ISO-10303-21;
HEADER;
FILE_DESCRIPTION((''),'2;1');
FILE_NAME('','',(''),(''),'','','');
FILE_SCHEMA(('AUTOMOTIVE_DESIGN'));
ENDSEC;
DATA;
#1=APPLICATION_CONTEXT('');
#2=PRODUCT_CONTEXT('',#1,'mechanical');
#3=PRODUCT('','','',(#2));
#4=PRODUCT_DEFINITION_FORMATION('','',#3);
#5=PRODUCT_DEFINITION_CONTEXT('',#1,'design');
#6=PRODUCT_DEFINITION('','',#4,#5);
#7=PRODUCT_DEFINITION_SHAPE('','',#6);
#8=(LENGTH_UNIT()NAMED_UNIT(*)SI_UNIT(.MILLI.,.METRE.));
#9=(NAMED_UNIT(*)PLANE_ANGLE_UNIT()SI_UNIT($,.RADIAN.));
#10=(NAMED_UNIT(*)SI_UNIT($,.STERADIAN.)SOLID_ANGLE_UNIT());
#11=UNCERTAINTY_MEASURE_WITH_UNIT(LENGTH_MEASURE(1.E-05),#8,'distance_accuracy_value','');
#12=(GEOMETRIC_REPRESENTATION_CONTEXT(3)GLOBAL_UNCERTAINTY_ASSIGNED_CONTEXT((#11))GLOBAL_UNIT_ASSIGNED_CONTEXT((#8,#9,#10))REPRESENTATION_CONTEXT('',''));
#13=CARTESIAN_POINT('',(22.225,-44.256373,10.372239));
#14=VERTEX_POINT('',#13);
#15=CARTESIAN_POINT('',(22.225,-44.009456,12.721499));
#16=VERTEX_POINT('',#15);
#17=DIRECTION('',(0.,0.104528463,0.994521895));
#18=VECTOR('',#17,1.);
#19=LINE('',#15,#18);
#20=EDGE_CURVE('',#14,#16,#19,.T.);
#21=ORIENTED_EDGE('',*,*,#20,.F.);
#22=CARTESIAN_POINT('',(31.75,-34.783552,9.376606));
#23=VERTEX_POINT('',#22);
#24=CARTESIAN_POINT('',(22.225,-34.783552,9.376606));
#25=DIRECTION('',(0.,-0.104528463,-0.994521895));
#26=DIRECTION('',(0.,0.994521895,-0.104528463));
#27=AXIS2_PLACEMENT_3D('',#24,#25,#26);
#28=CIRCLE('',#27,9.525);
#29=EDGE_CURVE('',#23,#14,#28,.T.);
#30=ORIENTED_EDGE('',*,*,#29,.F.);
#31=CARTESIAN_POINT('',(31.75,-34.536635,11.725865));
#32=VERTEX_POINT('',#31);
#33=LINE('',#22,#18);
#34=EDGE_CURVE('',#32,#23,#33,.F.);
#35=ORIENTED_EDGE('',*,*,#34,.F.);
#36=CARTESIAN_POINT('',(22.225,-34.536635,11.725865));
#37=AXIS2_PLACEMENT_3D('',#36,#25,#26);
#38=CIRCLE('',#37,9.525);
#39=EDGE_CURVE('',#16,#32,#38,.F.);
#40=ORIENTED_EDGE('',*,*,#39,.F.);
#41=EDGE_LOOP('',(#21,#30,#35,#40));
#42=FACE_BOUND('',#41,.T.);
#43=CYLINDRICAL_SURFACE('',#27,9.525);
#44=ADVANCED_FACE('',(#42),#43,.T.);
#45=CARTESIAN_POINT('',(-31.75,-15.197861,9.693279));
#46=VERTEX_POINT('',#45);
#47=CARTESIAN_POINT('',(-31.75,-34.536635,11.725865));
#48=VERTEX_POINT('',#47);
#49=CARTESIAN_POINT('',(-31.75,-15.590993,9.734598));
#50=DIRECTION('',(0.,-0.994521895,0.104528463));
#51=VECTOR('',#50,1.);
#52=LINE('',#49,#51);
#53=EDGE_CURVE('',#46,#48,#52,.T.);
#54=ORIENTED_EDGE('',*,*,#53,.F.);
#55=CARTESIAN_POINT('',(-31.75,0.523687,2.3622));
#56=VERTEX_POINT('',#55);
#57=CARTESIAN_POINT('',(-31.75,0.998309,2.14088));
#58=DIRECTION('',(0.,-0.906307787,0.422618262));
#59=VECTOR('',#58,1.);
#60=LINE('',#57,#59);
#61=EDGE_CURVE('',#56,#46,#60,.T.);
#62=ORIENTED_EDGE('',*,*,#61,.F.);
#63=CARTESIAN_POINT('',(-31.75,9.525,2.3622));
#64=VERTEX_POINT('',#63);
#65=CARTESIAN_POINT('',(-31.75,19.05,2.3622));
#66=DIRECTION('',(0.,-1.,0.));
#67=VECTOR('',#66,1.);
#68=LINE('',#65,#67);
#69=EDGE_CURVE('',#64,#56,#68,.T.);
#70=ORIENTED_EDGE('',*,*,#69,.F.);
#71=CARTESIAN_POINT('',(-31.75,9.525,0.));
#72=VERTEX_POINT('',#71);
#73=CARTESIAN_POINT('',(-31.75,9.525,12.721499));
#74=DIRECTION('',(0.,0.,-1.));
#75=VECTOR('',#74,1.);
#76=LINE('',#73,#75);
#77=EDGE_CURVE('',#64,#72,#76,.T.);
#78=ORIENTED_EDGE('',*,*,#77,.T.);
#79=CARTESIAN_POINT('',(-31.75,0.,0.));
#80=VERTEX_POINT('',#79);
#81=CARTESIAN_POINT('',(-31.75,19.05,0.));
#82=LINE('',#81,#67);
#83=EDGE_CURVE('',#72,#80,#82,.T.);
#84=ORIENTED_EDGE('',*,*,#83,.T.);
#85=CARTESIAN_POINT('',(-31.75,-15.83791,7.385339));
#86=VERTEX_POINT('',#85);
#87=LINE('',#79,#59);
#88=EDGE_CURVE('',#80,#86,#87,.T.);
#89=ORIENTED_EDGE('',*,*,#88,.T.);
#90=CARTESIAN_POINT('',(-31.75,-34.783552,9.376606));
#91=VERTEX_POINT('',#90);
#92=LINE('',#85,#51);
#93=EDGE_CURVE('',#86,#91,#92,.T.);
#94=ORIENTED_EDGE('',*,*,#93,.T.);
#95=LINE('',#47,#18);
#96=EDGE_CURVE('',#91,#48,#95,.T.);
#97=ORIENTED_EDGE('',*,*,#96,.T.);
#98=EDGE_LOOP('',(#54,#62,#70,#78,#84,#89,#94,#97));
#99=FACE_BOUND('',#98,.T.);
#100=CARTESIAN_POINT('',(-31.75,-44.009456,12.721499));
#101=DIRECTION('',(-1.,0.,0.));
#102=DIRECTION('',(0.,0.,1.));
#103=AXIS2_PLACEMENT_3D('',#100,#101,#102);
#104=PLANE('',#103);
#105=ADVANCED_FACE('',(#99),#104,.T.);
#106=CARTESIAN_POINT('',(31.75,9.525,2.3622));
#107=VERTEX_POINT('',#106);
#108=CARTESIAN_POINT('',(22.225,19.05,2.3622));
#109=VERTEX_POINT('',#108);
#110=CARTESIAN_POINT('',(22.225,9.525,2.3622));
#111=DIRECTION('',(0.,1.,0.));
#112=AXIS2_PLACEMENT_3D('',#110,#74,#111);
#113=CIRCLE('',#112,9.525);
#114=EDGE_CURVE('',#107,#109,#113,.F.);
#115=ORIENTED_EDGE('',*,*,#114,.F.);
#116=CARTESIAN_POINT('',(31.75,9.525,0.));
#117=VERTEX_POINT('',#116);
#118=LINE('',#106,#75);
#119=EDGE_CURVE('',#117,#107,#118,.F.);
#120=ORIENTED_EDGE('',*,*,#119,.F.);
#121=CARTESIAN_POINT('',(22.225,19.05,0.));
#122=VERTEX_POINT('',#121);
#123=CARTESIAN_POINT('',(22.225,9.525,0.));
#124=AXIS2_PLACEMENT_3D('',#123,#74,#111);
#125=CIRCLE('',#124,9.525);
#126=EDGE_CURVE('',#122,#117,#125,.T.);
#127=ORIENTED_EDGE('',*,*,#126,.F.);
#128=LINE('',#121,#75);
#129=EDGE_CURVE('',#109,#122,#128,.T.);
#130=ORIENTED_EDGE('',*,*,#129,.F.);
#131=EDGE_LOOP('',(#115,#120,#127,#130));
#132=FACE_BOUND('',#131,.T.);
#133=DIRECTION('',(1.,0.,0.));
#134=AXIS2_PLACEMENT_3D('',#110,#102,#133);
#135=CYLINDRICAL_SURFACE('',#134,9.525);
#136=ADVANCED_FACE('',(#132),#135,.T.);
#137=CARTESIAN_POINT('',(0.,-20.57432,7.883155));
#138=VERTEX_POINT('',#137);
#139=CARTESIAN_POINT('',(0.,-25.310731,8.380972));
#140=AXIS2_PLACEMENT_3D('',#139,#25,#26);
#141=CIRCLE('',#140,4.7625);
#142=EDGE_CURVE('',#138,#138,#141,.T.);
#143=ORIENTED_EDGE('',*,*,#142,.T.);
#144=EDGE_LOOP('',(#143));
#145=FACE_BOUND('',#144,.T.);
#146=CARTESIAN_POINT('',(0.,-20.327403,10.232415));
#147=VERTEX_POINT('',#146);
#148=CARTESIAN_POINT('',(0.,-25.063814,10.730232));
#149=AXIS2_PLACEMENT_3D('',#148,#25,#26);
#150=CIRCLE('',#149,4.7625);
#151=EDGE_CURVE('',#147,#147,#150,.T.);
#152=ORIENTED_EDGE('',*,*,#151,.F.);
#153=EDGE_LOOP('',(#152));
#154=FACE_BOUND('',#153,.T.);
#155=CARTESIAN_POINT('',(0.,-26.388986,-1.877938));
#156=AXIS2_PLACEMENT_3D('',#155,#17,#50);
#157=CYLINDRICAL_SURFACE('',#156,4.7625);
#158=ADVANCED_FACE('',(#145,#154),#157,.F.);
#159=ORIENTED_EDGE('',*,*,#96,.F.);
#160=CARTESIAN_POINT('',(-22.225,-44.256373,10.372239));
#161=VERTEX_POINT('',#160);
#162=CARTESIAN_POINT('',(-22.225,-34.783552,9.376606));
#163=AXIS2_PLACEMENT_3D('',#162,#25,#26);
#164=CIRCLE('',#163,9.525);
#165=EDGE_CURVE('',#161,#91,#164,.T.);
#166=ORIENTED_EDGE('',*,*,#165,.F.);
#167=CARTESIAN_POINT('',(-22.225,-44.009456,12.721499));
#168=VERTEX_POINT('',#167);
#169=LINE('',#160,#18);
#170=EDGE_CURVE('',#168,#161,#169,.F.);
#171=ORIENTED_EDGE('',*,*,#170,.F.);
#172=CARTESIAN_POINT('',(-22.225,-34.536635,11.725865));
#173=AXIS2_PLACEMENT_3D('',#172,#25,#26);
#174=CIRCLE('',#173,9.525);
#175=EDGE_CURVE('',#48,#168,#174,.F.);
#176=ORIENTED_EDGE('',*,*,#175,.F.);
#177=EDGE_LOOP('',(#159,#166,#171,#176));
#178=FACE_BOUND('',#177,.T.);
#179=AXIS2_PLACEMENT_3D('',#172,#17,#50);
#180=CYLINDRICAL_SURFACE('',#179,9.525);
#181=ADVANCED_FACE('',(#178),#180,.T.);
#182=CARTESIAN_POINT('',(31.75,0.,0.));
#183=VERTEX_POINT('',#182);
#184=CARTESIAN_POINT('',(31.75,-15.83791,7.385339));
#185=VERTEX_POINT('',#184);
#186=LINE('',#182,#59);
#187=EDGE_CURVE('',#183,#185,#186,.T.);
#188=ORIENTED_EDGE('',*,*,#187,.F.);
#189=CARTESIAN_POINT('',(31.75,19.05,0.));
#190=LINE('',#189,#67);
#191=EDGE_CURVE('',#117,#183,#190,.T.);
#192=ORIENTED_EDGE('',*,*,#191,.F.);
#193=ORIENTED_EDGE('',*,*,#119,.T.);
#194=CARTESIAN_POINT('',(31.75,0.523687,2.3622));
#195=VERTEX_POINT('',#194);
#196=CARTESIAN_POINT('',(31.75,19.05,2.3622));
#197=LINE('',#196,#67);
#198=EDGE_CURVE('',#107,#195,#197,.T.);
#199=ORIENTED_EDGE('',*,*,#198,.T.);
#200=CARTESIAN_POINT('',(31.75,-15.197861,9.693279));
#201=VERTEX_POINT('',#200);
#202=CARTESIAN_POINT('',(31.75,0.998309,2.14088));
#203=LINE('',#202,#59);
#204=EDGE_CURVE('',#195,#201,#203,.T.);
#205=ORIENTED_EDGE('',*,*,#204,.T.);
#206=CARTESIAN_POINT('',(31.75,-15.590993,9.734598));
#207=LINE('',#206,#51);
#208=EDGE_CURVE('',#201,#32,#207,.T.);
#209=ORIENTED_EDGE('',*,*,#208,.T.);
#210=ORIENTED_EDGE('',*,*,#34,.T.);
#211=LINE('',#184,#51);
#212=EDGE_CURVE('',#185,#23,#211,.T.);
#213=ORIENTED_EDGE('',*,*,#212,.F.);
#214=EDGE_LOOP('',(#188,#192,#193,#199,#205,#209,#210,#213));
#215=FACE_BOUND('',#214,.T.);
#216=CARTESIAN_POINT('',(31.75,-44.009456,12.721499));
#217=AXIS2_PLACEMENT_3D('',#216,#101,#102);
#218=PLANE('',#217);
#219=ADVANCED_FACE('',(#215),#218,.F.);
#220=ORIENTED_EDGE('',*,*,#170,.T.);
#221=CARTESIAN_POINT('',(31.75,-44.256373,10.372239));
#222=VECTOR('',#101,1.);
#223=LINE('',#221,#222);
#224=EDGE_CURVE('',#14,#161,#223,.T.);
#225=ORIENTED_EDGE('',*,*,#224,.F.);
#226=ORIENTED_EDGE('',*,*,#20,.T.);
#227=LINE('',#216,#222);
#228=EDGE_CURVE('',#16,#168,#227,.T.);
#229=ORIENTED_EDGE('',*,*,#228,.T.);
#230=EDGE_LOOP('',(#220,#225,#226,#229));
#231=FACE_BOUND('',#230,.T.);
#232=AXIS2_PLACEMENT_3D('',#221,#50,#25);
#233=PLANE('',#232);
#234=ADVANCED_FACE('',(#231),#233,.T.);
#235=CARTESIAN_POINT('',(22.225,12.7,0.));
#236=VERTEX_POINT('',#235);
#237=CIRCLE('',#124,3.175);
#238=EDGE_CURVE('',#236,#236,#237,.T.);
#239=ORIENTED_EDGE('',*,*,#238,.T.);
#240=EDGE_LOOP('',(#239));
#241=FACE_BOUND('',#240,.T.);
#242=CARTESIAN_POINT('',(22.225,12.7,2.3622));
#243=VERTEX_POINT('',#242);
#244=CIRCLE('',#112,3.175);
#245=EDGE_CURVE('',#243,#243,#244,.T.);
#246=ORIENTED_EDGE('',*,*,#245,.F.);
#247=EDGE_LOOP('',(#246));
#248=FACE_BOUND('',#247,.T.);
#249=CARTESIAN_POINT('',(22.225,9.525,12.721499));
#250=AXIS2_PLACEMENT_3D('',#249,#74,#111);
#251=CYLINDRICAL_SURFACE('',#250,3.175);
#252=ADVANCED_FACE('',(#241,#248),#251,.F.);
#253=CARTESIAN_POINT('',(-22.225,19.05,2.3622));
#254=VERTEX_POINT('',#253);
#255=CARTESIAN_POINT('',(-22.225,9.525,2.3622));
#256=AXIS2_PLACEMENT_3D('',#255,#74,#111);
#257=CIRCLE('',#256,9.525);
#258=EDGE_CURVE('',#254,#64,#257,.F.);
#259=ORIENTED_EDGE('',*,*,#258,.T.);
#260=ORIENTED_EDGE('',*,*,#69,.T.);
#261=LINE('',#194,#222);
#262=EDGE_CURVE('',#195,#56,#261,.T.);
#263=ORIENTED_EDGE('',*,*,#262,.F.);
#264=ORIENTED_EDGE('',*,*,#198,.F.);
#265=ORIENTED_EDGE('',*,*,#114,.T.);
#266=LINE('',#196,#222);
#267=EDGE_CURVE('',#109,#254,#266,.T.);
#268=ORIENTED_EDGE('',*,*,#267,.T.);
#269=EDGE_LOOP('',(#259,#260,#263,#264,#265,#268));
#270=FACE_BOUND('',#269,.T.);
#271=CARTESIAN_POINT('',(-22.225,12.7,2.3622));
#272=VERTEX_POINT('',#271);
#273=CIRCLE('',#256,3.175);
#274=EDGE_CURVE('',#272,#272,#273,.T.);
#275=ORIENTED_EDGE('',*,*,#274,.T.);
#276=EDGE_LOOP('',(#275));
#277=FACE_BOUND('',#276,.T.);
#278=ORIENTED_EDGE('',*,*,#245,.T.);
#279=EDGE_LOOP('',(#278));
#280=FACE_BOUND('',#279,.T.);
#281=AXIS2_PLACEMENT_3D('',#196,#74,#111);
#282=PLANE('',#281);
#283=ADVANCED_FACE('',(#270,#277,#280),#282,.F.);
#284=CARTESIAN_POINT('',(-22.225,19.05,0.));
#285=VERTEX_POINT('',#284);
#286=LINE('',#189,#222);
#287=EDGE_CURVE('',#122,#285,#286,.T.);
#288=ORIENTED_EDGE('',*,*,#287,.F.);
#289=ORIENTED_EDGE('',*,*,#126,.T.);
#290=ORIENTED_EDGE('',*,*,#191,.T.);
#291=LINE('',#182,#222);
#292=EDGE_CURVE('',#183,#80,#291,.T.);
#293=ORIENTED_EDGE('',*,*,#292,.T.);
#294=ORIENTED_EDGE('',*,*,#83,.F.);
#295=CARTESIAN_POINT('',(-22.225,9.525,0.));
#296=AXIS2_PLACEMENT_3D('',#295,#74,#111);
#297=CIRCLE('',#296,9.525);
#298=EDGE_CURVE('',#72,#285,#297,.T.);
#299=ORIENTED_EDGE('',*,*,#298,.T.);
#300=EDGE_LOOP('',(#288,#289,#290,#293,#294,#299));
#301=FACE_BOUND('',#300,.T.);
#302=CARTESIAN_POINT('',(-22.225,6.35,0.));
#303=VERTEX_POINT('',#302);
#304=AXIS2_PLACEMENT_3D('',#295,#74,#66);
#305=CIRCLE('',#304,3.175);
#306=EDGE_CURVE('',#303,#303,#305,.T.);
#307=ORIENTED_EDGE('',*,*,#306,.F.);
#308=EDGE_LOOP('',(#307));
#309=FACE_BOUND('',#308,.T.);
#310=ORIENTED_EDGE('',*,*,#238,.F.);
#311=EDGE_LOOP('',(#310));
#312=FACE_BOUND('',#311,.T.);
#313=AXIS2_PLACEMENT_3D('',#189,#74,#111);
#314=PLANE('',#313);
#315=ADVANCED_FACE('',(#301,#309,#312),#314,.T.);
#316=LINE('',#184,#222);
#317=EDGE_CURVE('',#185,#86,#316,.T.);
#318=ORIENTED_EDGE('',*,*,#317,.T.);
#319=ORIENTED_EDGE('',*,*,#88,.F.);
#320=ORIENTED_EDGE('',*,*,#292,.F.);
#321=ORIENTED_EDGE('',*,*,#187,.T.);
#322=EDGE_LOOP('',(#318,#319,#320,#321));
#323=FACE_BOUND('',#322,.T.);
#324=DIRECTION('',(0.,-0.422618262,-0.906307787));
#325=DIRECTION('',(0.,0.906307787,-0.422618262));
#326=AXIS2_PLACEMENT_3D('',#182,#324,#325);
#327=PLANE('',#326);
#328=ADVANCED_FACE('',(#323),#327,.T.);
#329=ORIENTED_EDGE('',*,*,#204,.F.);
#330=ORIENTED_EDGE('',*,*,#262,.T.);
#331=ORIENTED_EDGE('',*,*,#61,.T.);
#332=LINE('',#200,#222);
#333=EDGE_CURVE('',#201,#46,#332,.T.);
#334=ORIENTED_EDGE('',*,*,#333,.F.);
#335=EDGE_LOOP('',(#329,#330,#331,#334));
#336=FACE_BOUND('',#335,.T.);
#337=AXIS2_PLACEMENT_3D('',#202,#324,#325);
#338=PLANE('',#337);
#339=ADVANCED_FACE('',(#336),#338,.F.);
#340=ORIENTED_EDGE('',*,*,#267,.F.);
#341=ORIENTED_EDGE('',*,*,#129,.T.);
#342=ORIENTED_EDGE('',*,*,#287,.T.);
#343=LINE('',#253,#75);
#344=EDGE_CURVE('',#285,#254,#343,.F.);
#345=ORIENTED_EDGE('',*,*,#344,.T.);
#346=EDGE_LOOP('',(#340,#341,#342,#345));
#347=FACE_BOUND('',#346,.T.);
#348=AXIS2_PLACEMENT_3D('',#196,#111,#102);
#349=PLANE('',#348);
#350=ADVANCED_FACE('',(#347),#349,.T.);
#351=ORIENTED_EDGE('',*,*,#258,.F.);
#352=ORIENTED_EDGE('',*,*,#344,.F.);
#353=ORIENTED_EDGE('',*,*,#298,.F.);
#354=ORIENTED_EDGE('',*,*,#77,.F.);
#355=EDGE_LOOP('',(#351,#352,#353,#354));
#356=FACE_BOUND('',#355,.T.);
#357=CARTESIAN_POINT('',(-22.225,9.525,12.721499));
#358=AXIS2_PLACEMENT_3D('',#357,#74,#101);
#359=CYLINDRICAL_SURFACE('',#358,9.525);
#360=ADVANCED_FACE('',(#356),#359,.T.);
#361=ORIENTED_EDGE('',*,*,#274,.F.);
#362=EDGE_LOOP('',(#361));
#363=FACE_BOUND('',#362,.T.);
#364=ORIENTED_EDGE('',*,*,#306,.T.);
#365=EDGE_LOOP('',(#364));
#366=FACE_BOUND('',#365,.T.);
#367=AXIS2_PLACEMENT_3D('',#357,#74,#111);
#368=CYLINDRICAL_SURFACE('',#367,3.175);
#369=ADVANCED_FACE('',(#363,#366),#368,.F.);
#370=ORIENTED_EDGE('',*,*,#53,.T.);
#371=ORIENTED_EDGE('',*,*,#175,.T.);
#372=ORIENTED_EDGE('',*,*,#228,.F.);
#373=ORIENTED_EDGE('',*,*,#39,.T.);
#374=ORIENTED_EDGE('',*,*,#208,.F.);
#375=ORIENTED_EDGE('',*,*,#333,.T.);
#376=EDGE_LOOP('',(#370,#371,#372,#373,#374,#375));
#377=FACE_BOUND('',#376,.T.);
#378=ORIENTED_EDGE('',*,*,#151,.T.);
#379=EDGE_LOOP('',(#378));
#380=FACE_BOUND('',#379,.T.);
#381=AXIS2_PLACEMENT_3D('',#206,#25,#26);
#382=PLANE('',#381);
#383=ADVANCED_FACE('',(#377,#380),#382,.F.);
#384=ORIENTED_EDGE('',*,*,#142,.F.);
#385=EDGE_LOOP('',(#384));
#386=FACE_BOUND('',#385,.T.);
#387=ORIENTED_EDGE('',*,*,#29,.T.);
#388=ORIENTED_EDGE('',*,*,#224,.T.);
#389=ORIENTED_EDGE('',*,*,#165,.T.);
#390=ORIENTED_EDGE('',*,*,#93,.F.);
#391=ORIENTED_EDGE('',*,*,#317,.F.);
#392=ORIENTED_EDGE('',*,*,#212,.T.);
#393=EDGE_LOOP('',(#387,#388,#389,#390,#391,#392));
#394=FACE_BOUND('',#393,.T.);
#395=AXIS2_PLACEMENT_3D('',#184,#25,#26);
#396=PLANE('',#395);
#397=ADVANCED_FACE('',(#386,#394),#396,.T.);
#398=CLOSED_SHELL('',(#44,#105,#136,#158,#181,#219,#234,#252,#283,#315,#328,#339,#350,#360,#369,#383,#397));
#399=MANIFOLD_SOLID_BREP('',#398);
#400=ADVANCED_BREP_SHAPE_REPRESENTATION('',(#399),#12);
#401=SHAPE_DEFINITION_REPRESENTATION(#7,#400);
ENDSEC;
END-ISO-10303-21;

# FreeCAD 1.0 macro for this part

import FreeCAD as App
import Part
import Sketcher
from FreeCAD import Vector
Q = App.Units.Quantity


def edges_at(feature, points):
    """Names of the edges that pass closest to the given points."""
    edges = feature.Shape.Edges
    near = lambda p: min(range(len(edges)), key=lambda i: edges[i].distToShape(Part.Vertex(*p))[0])
    return sorted({f"Edge{near(p) + 1}" for p in points})


def add_polygon(sketch, points):
    """Adds a closed chain of lines whose ends are joined by coincident constraints."""
    first, n = sketch.GeometryCount, len(points)
    for a, b in zip(points, points[1:] + points[:1]):
        sketch.addGeometry(Part.LineSegment(App.Vector(*a, 0), App.Vector(*b, 0)), False)
    for i in range(n):
        sketch.addConstraint(Sketcher.Constraint("Coincident", first + i, 2, first + (i + 1) % n, 1))

doc = App.newDocument("Part")
body = doc.addObject("PartDesign::Body", "Body")

# Sketch on YZ plane
sketch1 = doc.addObject("Sketcher::SketchObject", "Sketch")
body.addObject(sketch1)
sketch1.AttachmentSupport = (doc.YZ_Plane, [""])
sketch1.MapMode = "FlatFace"
add_polygon(sketch1, [(0, 0), (19.1, 0), (19.1, 2.4), (0.5, 2.4), (-15.2, 9.7), (-44, 12.7), (-44.3, 10.4), (-15.8, 7.4)])  # lines 0-7
sketch1.addConstraint(Sketcher.Constraint("Horizontal", 0))
sketch1.addConstraint(Sketcher.Constraint("Vertical", 1))
sketch1.addConstraint(Sketcher.Constraint("Horizontal", 2))
sketch1.addConstraint(Sketcher.Constraint("Coincident", 7, 2, -1, 1))
sketch1.addConstraint(Sketcher.Constraint("Perpendicular", 4, 5))
sketch1.addConstraint(Sketcher.Constraint("Perpendicular", 5, 6))
sketch1.addConstraint(Sketcher.Constraint("Parallel", 3, 7))
sketch1.addConstraint(Sketcher.Constraint("Angle", 3, Q("155 deg")))
sketch1.addConstraint(Sketcher.Constraint("Angle", 4, Q("174 deg")))
sketch1.addConstraint(Sketcher.Constraint("DistanceX", 0, 1, 0, 2, Q("0.75 in")))
sketch1.addConstraint(Sketcher.Constraint("DistanceY", 1, 1, 1, 2, Q("0.093 in")))
sketch1.addConstraint(Sketcher.Constraint("Distance", 5, Q("0.093 in")))
sketch1.addConstraint(Sketcher.Constraint("Distance", 6, Q("1.125 in")))
sketch1.addConstraint(Sketcher.Constraint("Distance", 7, Q("0.688 in")))
sketch1.addConstraint(Sketcher.Constraint("Distance", 3, 17.34681))
pad1 = doc.addObject("PartDesign::Pad", "Pad")
body.addObject(pad1)
pad1.Profile = sketch1
pad1.Length = Q("2.5 in")
pad1.Midplane = True

# Sketch on an angled plane
sketch2 = doc.addObject("Sketcher::SketchObject", "Sketch001")
body.addObject(sketch2)
sketch2.Placement = App.Placement(Vector(0, -51.169527, 13.474053), App.Rotation(Vector(-1, 0, 0), Vector(0, -0.994521895, 0.104528463), Vector(0, 0.104528463, 0.994521895), "ZXY"))
sketch2.addGeometry(Part.Circle(Vector(0, -26.2, 0), Vector(0, 0, 1), 4.8), False)
sketch2.addConstraint(Sketcher.Constraint("PointOnObject", 0, 3, -2))
sketch2.addConstraint(Sketcher.Constraint("Diameter", 0, Q("0.375 in")))
sketch2.addConstraint(Sketcher.Constraint("DistanceY", 0, 3, -1, 1, 26.249511))
pocket1 = doc.addObject("PartDesign::Pocket", "Pocket")
body.addObject(pocket1)
pocket1.Profile = sketch2
pocket1.Type = "ThroughAll"
pocket1.Midplane = True

# Sketch on XY plane
sketch3 = doc.addObject("Sketcher::SketchObject", "Sketch002")
body.addObject(sketch3)
sketch3.AttachmentSupport = (doc.XY_Plane, [""])
sketch3.MapMode = "FlatFace"
sketch3.addGeometry(Part.Circle(Vector(22.2, 9.5, 0), Vector(0, 0, 1), 3.2), False)
sketch3.addGeometry(Part.Circle(Vector(-22.2, 9.5, 0), Vector(0, 0, 1), 3.2), False)
sketch3.addConstraint(Sketcher.Constraint("Equal", 0, 1))
sketch3.addConstraint(Sketcher.Constraint("Symmetric", 0, 3, 1, 3, -2))
sketch3.addConstraint(Sketcher.Constraint("Diameter", 0, Q("0.25 in")))
sketch3.addConstraint(Sketcher.Constraint("DistanceX", 1, 3, 0, 3, Q("1.75 in")))
sketch3.addConstraint(Sketcher.Constraint("DistanceY", -1, 1, 0, 3, Q("0.375 in")))
pocket2 = doc.addObject("PartDesign::Pocket", "Pocket001")
body.addObject(pocket2)
pocket2.Profile = sketch3
pocket2.Type = "ThroughAll"
pocket2.Reversed = True
doc.recompute()

fillet = doc.addObject("PartDesign::Fillet", "Fillet")
body.addObject(fillet)
fillet.Base = (pocket2, edges_at(pocket2, [
    (31.75, 19.05, 1.181),
    (-31.75, 19.05, 1.181),
    (31.75, -44.133, 11.547),
    (-31.75, -44.133, 11.547),
]))
fillet.Radius = Q("0.375 in")

doc.recompute()
